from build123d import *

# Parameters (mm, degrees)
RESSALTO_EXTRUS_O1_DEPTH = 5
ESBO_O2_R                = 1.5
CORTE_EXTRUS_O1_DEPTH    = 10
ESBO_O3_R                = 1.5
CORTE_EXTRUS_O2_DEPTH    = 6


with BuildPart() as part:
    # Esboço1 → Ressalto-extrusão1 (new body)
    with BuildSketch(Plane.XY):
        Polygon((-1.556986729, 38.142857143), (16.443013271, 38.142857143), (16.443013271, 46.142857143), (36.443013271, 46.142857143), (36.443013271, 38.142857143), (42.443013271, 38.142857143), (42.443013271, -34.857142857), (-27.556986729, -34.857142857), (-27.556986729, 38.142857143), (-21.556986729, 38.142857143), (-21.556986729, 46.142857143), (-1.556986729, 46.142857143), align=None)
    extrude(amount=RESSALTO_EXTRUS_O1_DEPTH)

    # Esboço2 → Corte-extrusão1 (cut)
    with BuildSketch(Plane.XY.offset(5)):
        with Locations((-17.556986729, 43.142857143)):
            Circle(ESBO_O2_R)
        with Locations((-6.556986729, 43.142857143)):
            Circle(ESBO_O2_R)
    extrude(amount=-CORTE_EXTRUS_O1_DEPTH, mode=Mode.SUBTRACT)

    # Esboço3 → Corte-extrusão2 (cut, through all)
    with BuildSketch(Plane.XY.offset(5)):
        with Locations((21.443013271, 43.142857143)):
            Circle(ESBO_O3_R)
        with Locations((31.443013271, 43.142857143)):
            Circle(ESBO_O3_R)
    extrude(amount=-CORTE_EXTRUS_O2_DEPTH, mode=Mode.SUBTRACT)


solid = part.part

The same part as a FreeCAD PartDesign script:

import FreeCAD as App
import Part
import Sketcher
from FreeCAD import Vector

doc = App.newDocument("Part")
body = doc.addObject("PartDesign::Body", "Body")

sketch1 = body.newObject("Sketcher::SketchObject", "Sketch")
sketch1.AttachmentSupport = (doc.getObject("XY_Plane"), [""])
sketch1.MapMode = "FlatFace"
sketch1.addGeometry(Part.LineSegment(Vector(16.443013, 38.142857, 0), Vector(-1.556987, 38.142857, 0)), False)
sketch1.addGeometry(Part.LineSegment(Vector(-1.556987, 38.142857, 0), Vector(-1.556987, 46.142857, 0)), False)
sketch1.addGeometry(Part.LineSegment(Vector(-1.556987, 46.142857, 0), Vector(-21.556987, 46.142857, 0)), False)
sketch1.addGeometry(Part.LineSegment(Vector(-21.556987, 46.142857, 0), Vector(-21.556987, 38.142857, 0)), False)
sketch1.addGeometry(Part.LineSegment(Vector(-21.556987, 38.142857, 0), Vector(-27.556987, 38.142857, 0)), False)
sketch1.addGeometry(Part.LineSegment(Vector(-27.556987, 38.142857, 0), Vector(-27.556987, -34.857143, 0)), False)
sketch1.addGeometry(Part.LineSegment(Vector(-27.556987, -34.857143, 0), Vector(42.443013, -34.857143, 0)), False)
sketch1.addGeometry(Part.LineSegment(Vector(42.443013, -34.857143, 0), Vector(42.443013, 38.142857, 0)), False)
sketch1.addGeometry(Part.LineSegment(Vector(42.443013, 38.142857, 0), Vector(36.443013, 38.142857, 0)), False)
sketch1.addGeometry(Part.LineSegment(Vector(36.443013, 38.142857, 0), Vector(36.443013, 46.142857, 0)), False)
sketch1.addGeometry(Part.LineSegment(Vector(36.443013, 46.142857, 0), Vector(16.443013, 46.142857, 0)), False)
sketch1.addGeometry(Part.LineSegment(Vector(16.443013, 46.142857, 0), Vector(16.443013, 38.142857, 0)), False)
sketch1.addConstraint(Sketcher.Constraint("Coincident", 0, 2, 1, 1))
sketch1.addConstraint(Sketcher.Constraint("Coincident", 1, 2, 2, 1))
sketch1.addConstraint(Sketcher.Constraint("Coincident", 2, 2, 3, 1))
sketch1.addConstraint(Sketcher.Constraint("Coincident", 3, 2, 4, 1))
sketch1.addConstraint(Sketcher.Constraint("Coincident", 4, 2, 5, 1))
sketch1.addConstraint(Sketcher.Constraint("Coincident", 5, 2, 6, 1))
sketch1.addConstraint(Sketcher.Constraint("Coincident", 6, 2, 7, 1))
sketch1.addConstraint(Sketcher.Constraint("Coincident", 7, 2, 8, 1))
sketch1.addConstraint(Sketcher.Constraint("Coincident", 8, 2, 9, 1))
sketch1.addConstraint(Sketcher.Constraint("Coincident", 9, 2, 10, 1))
sketch1.addConstraint(Sketcher.Constraint("Coincident", 10, 2, 11, 1))
sketch1.addConstraint(Sketcher.Constraint("Coincident", 11, 2, 0, 1))
sketch1.addConstraint(Sketcher.Constraint("Horizontal", 0))
sketch1.addConstraint(Sketcher.Constraint("Vertical", 1))
sketch1.addConstraint(Sketcher.Constraint("Horizontal", 2))
sketch1.addConstraint(Sketcher.Constraint("Vertical", 3))
sketch1.addConstraint(Sketcher.Constraint("Horizontal", 4))
sketch1.addConstraint(Sketcher.Constraint("Vertical", 5))
sketch1.addConstraint(Sketcher.Constraint("Horizontal", 6))
sketch1.addConstraint(Sketcher.Constraint("Vertical", 7))
sketch1.addConstraint(Sketcher.Constraint("Horizontal", 8))
sketch1.addConstraint(Sketcher.Constraint("Vertical", 9))
sketch1.addConstraint(Sketcher.Constraint("Horizontal", 10))
sketch1.addConstraint(Sketcher.Constraint("Vertical", 11))
sketch1.addConstraint(Sketcher.Constraint("Horizontal", 0, 2, 3, 2))
sketch1.addConstraint(Sketcher.Constraint("Horizontal", 4, 2, 7, 2))
sketch1.addConstraint(Sketcher.Constraint("Horizontal", 2, 2, 9, 2))
sketch1.addConstraint(Sketcher.Constraint("Equal", 4, 8))
sketch1.addConstraint(Sketcher.Constraint("Equal", 2, 10))
sketch1.addConstraint(Sketcher.Constraint("DistanceX", 0, 2, 0, 1, 18.0))
sketch1.addConstraint(Sketcher.Constraint("DistanceX", 2, 2, 2, 1, 20.0))
sketch1.addConstraint(Sketcher.Constraint("DistanceX", 4, 2, 4, 1, 6.0))
sketch1.addConstraint(Sketcher.Constraint("DistanceY", 1, 1, 1, 2, 8.0))
sketch1.addConstraint(Sketcher.Constraint("DistanceY", 5, 2, 5, 1, 73.0))
sketch1.addConstraint(Sketcher.Constraint("DistanceX", 0, 2, -1, 1, 1.556987))
sketch1.addConstraint(Sketcher.Constraint("DistanceY", -1, 1, 0, 2, 38.142857))
pad1 = body.newObject("PartDesign::Pad", "Pad")
pad1.Profile = sketch1
pad1.Length = 5

sketch2 = body.newObject("Sketcher::SketchObject", "Sketch001")
sketch2.AttachmentSupport = (doc.getObject("XY_Plane"), [""])
sketch2.MapMode = "FlatFace"
sketch2.AttachmentOffset = App.Placement(Vector(0, 0, 5), App.Rotation())
sketch2.addGeometry(Part.Circle(Vector(-17.556987, 43.142857, 0), Vector(0, 0, 1), 1.5), False)
sketch2.addGeometry(Part.Circle(Vector(-6.556987, 43.142857, 0), Vector(0, 0, 1), 1.5), False)
sketch2.addConstraint(Sketcher.Constraint("Equal", 0, 1))
sketch2.addConstraint(Sketcher.Constraint("Horizontal", 0, 3, 1, 3))
sketch2.addConstraint(Sketcher.Constraint("Diameter", 0, 3.0))
sketch2.addConstraint(Sketcher.Constraint("DistanceX", 0, 3, 1, 3, 11.0))
sketch2.addConstraint(Sketcher.Constraint("DistanceX", 0, 3, -1, 1, 17.556987))
sketch2.addConstraint(Sketcher.Constraint("DistanceY", -1, 1, 0, 3, 43.142857))
pocket1 = body.newObject("PartDesign::Pocket", "Pocket")
pocket1.Profile = sketch2
pocket1.Length = 10

sketch3 = body.newObject("Sketcher::SketchObject", "Sketch002")
sketch3.AttachmentSupport = (doc.getObject("XY_Plane"), [""])
sketch3.MapMode = "FlatFace"
sketch3.AttachmentOffset = App.Placement(Vector(0, 0, 5), App.Rotation())
sketch3.addGeometry(Part.Circle(Vector(21.443013, 43.142857, 0), Vector(0, 0, 1), 1.5), False)
sketch3.addGeometry(Part.Circle(Vector(31.443013, 43.142857, 0), Vector(0, 0, 1), 1.5), False)
sketch3.addConstraint(Sketcher.Constraint("Equal", 0, 1))
sketch3.addConstraint(Sketcher.Constraint("Horizontal", 0, 3, 1, 3))
sketch3.addConstraint(Sketcher.Constraint("Diameter", 0, 3.0))
sketch3.addConstraint(Sketcher.Constraint("DistanceX", 0, 3, 1, 3, 10.0))
sketch3.addConstraint(Sketcher.Constraint("DistanceX", -1, 1, 0, 3, 21.443013))
sketch3.addConstraint(Sketcher.Constraint("DistanceY", -1, 1, 0, 3, 43.142857))
pocket2 = body.newObject("PartDesign::Pocket", "Pocket001")
pocket2.Profile = sketch3
pocket2.Type = "ThroughAll"

doc.recompute()
